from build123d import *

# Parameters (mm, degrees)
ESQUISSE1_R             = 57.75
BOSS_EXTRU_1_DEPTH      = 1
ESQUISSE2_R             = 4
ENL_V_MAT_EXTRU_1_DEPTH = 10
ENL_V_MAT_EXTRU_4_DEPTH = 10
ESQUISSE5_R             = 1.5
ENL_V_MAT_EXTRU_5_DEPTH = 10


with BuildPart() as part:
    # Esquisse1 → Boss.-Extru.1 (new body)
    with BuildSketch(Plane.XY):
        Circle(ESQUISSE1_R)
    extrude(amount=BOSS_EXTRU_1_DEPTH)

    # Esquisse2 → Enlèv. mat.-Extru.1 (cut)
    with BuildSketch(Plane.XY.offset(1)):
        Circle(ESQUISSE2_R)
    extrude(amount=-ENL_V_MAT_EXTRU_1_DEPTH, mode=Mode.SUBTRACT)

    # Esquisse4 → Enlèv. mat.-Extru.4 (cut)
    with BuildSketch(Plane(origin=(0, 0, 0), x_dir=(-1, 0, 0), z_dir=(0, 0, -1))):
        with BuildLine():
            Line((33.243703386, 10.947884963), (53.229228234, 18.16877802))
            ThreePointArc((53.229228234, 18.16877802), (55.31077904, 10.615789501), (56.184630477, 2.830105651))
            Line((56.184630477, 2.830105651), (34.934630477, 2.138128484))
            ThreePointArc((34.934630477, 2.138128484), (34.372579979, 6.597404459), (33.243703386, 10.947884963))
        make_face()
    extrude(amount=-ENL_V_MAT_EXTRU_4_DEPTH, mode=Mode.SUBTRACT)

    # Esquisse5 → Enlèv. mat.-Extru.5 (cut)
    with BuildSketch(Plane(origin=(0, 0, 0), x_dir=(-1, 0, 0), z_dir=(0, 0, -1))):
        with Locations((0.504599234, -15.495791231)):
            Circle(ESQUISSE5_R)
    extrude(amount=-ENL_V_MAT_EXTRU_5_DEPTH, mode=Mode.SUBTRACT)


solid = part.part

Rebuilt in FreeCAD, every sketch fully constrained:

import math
import FreeCAD as App
import Part
import Sketcher
from FreeCAD import Vector
Q = App.Units.Quantity

doc = App.newDocument("Part")
body = doc.addObject("PartDesign::Body", "Body")

# Sketch on XY plane
sketch1 = body.newObject("Sketcher::SketchObject", "Sketch")
sketch1.AttachmentSupport = (doc.getObject("XY_Plane"), [""])
sketch1.MapMode = "FlatFace"
sketch1.addGeometry(Part.Circle(Vector(0, 0, 0), Vector(0, 0, 1), 57.75), False)
sketch1.addConstraint(Sketcher.Constraint("Coincident", 0, 3, -1, 1))
sketch1.addConstraint(Sketcher.Constraint("Diameter", 0, Q("115.5 mm")))
pad1 = body.newObject("PartDesign::Pad", "Pad")
pad1.Profile = sketch1
pad1.Length = 1

# Sketch on XY plane
sketch2 = body.newObject("Sketcher::SketchObject", "Sketch001")
sketch2.AttachmentSupport = (doc.getObject("XY_Plane"), [""])
sketch2.MapMode = "FlatFace"
sketch2.AttachmentOffset = App.Placement(Vector(0, 0, 1), App.Rotation())
sketch2.addGeometry(Part.Circle(Vector(0, 0, 0), Vector(0, 0, 1), 4), False)
sketch2.addConstraint(Sketcher.Constraint("Coincident", 0, 3, -1, 1))
sketch2.addConstraint(Sketcher.Constraint("Diameter", 0, Q("8 mm")))
pocket1 = body.newObject("PartDesign::Pocket", "Pocket")
pocket1.Profile = sketch2
pocket1.Length = 10

# Sketch on XY plane
sketch3 = body.newObject("Sketcher::SketchObject", "Sketch002")
sketch3.AttachmentSupport = (doc.getObject("XY_Plane"), [""])
sketch3.MapMode = "FlatFace"
sketch3.addGeometry(Part.LineSegment(Vector(-53.229228, 18.168778, 0), Vector(-33.243703, 10.947885, 0)), False)
sketch3.addGeometry(Part.ArcOfCircle(Part.Circle(Vector(0, 0, 0), Vector(0, 0, 1), 35), math.radians(161.772145), math.radians(176.497655)), False)
sketch3.addGeometry(Part.LineSegment(Vector(-34.93463, 2.138128, 0), Vector(-56.18463, 2.830106, 0)), False)
sketch3.addGeometry(Part.ArcOfCircle(Part.Circle(Vector(-6.305742, 1.173669, 0), Vector(0, 0, 1), 49.906385), math.radians(160.090236), math.radians(178.097953)), False)
sketch3.addConstraint(Sketcher.Constraint("Coincident", 0, 2, 1, 1))
sketch3.addConstraint(Sketcher.Constraint("Coincident", 1, 2, 2, 1))
sketch3.addConstraint(Sketcher.Constraint("Coincident", 2, 2, 3, 2))
sketch3.addConstraint(Sketcher.Constraint("Coincident", 3, 1, 0, 1))
sketch3.addConstraint(Sketcher.Constraint("Coincident", 1, 3, -1, 1))
sketch3.addConstraint(Sketcher.Constraint("Radius", 1, Q("35 mm")))
sketch3.addConstraint(Sketcher.Constraint("Distance", 0, Q("21.25 mm")))
sketch3.addConstraint(Sketcher.Constraint("DistanceX", 2, 2, 1, 2, Q("21.25 mm")))
sketch3.addConstraint(Sketcher.Constraint("Radius", 3, Q("49.906385 mm")))
sketch3.addConstraint(Sketcher.Constraint("DistanceY", -1, 1, 3, 3, Q("1.173669 mm")))
sketch3.addConstraint(Sketcher.Constraint("DistanceX", 1, 2, -1, 1, Q("34.93463 mm")))
sketch3.addConstraint(Sketcher.Constraint("DistanceX", 3, 1, -1, 1, Q("53.229228 mm")))
sketch3.addConstraint(Sketcher.Constraint("DistanceX", 0, 2, 3, 3, Q("26.937961 mm")))
pocket2 = body.newObject("PartDesign::Pocket", "Pocket001")
pocket2.Profile = sketch3
pocket2.Length = 10
pocket2.Reversed = True

# Sketch on XY plane
sketch4 = body.newObject("Sketcher::SketchObject", "Sketch003")
sketch4.AttachmentSupport = (doc.getObject("XY_Plane"), [""])
sketch4.MapMode = "FlatFace"
sketch4.addGeometry(Part.Circle(Vector(-0.504599, -15.495791, 0), Vector(0, 0, 1), 1.5), False)
sketch4.addConstraint(Sketcher.Constraint("Diameter", 0, Q("3 mm")))
sketch4.addConstraint(Sketcher.Constraint("DistanceX", 0, 3, -1, 1, Q("0.504599 mm")))
sketch4.addConstraint(Sketcher.Constraint("DistanceY", 0, 3, -1, 1, Q("15.495791 mm")))
pocket3 = body.newObject("PartDesign::Pocket", "Pocket002")
pocket3.Profile = sketch4
pocket3.Length = 10
pocket3.Reversed = True

doc.recompute()
